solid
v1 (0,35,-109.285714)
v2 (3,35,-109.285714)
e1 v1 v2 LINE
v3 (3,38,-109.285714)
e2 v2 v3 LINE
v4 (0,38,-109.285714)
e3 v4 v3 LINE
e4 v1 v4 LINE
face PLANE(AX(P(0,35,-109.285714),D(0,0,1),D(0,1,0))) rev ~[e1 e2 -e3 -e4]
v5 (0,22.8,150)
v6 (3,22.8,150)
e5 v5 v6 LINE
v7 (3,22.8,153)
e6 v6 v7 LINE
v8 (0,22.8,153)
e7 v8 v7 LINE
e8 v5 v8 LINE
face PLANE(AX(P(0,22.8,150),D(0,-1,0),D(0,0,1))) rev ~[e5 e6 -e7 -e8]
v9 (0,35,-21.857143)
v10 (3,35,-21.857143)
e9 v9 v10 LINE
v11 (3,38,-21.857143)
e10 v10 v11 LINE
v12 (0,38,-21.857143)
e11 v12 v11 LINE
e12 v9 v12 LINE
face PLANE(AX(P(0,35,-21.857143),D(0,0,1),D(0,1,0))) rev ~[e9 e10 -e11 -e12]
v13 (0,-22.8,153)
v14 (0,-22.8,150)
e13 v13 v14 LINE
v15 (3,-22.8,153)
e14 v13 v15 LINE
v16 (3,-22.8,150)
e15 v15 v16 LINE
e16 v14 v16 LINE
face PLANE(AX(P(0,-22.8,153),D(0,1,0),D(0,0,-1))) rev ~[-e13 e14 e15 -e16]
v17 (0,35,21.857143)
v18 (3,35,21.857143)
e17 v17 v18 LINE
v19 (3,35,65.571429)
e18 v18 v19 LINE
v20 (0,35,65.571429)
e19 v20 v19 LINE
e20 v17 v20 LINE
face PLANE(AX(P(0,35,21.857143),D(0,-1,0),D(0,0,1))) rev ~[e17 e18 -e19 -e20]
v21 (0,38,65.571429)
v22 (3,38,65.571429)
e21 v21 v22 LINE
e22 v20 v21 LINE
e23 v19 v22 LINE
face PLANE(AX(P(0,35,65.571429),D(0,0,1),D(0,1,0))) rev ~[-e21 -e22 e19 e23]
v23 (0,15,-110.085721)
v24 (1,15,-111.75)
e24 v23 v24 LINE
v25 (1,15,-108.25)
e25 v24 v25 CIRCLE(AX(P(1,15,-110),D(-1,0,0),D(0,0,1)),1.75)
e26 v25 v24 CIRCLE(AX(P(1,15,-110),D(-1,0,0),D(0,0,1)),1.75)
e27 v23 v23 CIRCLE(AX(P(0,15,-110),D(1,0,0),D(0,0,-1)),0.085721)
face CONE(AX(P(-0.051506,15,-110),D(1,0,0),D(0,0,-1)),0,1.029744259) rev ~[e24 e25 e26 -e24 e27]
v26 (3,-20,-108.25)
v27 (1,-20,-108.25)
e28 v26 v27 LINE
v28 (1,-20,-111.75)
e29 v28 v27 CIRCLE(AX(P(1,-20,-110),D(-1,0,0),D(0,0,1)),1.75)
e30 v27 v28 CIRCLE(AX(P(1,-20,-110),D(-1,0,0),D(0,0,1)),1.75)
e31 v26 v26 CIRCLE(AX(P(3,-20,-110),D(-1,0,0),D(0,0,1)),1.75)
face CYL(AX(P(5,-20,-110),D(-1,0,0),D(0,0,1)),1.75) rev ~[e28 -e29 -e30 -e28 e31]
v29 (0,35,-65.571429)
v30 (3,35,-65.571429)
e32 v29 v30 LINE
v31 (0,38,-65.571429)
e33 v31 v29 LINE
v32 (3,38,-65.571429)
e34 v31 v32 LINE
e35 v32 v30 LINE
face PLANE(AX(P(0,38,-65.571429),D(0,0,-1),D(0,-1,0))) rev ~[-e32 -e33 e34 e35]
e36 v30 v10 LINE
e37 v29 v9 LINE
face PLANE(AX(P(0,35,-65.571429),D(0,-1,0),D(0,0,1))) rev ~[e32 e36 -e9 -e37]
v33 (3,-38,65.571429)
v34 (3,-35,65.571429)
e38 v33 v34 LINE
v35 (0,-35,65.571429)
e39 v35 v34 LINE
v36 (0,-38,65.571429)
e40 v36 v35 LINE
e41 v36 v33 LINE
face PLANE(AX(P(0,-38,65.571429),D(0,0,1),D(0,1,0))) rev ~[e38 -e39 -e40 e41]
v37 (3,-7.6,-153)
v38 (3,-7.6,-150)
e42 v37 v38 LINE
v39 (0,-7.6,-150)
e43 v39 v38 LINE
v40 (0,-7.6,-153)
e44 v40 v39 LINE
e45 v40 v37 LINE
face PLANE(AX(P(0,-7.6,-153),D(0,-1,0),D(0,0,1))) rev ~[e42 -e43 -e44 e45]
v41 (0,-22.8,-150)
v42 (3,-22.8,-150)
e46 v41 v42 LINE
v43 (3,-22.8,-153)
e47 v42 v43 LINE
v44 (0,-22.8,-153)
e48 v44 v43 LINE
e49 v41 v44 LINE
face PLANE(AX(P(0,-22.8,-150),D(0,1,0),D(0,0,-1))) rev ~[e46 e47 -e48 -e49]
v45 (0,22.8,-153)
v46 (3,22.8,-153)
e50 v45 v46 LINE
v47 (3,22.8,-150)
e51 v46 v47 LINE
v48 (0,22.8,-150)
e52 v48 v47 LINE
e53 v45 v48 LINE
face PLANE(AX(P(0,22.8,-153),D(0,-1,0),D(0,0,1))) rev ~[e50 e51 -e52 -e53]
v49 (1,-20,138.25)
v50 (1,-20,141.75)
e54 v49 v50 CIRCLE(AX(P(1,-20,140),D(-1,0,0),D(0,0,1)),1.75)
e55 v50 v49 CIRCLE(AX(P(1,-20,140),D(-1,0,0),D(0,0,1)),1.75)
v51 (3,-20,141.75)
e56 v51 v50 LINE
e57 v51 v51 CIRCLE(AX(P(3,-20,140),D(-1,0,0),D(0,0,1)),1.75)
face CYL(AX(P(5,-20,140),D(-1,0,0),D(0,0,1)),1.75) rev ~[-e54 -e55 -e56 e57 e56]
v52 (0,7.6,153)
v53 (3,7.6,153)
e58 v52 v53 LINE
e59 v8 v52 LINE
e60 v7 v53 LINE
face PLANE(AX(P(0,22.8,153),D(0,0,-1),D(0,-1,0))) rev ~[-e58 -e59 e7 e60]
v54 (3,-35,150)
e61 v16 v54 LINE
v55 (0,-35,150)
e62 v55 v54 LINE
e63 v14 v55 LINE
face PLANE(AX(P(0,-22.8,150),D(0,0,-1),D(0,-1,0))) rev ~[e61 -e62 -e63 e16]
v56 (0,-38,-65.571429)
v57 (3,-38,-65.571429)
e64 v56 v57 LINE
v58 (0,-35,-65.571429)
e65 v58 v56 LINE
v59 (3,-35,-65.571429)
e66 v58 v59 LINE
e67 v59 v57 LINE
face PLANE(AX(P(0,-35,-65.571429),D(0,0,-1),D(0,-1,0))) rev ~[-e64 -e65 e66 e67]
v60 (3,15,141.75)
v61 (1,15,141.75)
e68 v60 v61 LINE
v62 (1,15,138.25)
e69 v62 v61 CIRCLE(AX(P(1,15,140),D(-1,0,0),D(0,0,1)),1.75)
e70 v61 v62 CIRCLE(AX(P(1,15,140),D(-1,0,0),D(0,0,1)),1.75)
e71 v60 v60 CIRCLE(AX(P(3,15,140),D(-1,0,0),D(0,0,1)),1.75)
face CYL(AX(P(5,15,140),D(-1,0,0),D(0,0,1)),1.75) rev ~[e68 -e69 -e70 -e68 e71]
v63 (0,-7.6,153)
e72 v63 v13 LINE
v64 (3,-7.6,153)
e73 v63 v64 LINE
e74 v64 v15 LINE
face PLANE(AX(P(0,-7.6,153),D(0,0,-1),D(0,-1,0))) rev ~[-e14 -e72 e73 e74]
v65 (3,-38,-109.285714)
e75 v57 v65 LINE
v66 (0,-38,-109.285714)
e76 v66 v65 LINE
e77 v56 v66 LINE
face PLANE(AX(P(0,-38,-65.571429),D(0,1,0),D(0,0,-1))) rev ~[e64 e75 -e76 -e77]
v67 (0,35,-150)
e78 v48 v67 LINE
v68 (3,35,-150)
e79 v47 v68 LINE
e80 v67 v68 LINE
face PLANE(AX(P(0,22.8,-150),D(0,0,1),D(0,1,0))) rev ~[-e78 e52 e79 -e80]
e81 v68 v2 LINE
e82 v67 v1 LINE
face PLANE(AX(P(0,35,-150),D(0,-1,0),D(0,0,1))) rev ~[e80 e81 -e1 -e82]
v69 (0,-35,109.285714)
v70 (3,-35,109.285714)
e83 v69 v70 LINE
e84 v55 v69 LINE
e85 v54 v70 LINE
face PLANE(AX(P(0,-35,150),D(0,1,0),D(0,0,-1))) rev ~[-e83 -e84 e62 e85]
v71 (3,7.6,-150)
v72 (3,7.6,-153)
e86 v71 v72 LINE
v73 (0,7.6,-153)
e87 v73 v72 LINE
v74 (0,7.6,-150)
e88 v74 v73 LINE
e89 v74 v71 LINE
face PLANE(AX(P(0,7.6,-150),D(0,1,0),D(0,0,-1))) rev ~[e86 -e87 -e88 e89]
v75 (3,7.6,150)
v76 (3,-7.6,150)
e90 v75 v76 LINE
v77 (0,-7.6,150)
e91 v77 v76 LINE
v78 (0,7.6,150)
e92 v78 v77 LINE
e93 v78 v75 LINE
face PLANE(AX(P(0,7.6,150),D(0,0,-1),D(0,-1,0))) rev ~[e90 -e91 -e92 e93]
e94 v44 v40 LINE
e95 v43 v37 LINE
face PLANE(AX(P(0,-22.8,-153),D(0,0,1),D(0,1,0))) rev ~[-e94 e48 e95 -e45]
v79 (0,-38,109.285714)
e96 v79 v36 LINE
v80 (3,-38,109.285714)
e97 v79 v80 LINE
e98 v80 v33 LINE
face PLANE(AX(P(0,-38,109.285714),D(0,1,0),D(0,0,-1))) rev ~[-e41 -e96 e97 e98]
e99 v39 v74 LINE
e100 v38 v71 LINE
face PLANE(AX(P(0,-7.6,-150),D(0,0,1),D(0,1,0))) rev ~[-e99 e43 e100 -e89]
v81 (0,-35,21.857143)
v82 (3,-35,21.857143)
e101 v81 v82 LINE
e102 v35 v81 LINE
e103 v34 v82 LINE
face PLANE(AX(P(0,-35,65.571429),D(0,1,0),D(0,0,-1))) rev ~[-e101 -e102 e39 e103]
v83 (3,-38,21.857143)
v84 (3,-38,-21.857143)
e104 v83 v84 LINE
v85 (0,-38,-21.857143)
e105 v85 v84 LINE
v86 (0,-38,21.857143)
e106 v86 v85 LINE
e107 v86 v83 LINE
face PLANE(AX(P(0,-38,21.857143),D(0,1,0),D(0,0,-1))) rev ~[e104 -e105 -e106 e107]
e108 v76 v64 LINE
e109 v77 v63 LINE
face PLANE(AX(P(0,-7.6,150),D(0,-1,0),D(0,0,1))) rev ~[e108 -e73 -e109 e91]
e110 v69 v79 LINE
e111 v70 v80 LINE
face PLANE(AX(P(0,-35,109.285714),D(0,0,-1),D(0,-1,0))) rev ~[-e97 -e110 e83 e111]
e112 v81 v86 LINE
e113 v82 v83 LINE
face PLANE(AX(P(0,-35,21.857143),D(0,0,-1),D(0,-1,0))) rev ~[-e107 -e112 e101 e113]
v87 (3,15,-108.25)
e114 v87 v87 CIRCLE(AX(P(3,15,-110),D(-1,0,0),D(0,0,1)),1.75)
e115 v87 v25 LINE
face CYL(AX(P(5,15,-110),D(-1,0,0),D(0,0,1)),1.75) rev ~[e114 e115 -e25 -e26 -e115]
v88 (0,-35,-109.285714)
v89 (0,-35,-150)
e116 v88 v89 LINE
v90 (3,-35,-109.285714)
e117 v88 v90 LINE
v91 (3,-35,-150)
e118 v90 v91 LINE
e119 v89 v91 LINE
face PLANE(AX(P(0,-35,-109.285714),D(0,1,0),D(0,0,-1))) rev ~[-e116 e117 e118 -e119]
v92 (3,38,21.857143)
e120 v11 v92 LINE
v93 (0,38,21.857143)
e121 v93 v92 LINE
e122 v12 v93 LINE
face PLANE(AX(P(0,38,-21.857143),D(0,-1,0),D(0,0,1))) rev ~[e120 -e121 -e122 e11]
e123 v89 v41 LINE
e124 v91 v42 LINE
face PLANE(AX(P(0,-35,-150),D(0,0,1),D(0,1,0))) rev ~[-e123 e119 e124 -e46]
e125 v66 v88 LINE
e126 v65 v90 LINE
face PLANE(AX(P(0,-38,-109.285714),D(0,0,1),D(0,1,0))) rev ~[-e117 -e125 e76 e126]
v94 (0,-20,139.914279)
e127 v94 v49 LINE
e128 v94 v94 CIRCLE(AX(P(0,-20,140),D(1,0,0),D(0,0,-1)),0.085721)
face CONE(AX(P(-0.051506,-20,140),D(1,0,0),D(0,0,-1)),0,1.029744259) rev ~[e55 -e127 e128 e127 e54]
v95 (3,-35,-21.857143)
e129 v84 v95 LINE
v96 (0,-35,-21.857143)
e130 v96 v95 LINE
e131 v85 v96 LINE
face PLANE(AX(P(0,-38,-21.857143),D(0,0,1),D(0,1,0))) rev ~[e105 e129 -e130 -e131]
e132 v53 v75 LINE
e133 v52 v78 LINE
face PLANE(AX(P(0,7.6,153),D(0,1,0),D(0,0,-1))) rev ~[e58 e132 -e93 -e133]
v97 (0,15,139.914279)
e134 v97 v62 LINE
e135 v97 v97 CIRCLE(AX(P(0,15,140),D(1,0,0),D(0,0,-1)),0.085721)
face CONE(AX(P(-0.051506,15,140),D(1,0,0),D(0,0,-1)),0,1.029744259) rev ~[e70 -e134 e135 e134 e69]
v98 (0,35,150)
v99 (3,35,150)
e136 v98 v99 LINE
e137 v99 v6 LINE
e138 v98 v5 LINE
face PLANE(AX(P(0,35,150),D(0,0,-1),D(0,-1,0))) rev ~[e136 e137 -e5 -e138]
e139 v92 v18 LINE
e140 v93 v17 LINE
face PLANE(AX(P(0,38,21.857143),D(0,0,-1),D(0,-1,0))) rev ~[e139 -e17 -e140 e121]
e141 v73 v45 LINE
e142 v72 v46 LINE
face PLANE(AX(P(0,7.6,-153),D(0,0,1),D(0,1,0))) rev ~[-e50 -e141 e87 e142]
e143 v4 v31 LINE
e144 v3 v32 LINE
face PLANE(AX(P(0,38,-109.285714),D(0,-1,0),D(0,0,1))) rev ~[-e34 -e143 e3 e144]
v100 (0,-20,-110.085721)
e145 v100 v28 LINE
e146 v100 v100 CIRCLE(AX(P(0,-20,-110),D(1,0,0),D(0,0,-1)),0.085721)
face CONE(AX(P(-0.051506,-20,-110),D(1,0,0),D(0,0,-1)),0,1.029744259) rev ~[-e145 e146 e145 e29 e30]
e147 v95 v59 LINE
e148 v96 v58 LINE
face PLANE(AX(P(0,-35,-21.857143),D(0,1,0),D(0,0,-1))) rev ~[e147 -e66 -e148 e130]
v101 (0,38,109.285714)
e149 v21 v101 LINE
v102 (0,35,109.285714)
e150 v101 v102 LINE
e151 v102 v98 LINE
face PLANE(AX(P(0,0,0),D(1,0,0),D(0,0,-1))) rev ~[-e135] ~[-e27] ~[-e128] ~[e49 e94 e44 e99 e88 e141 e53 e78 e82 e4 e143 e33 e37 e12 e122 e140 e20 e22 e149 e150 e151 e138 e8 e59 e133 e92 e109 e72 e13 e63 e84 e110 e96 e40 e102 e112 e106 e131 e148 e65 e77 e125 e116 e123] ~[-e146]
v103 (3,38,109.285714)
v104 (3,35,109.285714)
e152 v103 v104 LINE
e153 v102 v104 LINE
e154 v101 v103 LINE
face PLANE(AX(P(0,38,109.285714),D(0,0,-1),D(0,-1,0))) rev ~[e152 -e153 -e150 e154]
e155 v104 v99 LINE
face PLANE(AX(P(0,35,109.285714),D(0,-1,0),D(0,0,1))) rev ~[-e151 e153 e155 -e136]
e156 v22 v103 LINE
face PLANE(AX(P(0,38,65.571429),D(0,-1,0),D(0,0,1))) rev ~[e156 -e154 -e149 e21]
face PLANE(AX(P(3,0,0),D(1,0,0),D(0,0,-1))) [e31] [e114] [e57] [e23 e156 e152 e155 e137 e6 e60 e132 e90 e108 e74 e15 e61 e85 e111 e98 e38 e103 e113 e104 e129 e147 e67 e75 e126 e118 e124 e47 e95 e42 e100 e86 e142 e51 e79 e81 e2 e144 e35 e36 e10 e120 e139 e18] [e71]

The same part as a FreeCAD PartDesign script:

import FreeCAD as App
import Part
import Sketcher
Q = App.Units.Quantity

doc = App.newDocument("Part")
body = doc.addObject("PartDesign::Body", "Body")

# Sketch on YZ plane
sketch1 = doc.addObject("Sketcher::SketchObject", "Sketch")
body.addObject(sketch1)
sketch1.AttachmentSupport = (doc.YZ_Plane, [""])
sketch1.MapMode = "FlatFace"
sketch1.addGeometry([
    Part.LineSegment(App.Vector(38, -109.3, 0), App.Vector(38, -65.6, 0)),  # 0
    Part.LineSegment(App.Vector(38, -65.6, 0), App.Vector(35, -65.6, 0)),  # 1
    Part.LineSegment(App.Vector(35, -65.6, 0), App.Vector(35, -21.9, 0)),  # 2
    Part.LineSegment(App.Vector(35, -21.9, 0), App.Vector(38, -21.9, 0)),  # 3
    Part.LineSegment(App.Vector(38, -21.9, 0), App.Vector(38, 21.9, 0)),  # 4
    Part.LineSegment(App.Vector(38, 21.9, 0), App.Vector(35, 21.9, 0)),  # 5
    Part.LineSegment(App.Vector(35, 21.9, 0), App.Vector(35, 65.6, 0)),  # 6
    Part.LineSegment(App.Vector(35, 65.6, 0), App.Vector(38, 65.6, 0)),  # 7
    Part.LineSegment(App.Vector(38, 65.6, 0), App.Vector(38, 109.3, 0)),  # 8
    Part.LineSegment(App.Vector(38, 109.3, 0), App.Vector(35, 109.3, 0)),  # 9
    Part.LineSegment(App.Vector(35, 109.3, 0), App.Vector(35, 150, 0)),  # 10
    Part.LineSegment(App.Vector(35, 150, 0), App.Vector(22.8, 150, 0)),  # 11
    Part.LineSegment(App.Vector(22.8, 150, 0), App.Vector(22.8, 153, 0)),  # 12
    Part.LineSegment(App.Vector(22.8, 153, 0), App.Vector(7.6, 153, 0)),  # 13
    Part.LineSegment(App.Vector(7.6, 153, 0), App.Vector(7.6, 150, 0)),  # 14
    Part.LineSegment(App.Vector(7.6, 150, 0), App.Vector(-7.6, 150, 0)),  # 15
    Part.LineSegment(App.Vector(-7.6, 150, 0), App.Vector(-7.6, 153, 0)),  # 16
    Part.LineSegment(App.Vector(-7.6, 153, 0), App.Vector(-22.8, 153, 0)),  # 17
    Part.LineSegment(App.Vector(-22.8, 153, 0), App.Vector(-22.8, 150, 0)),  # 18
    Part.LineSegment(App.Vector(-22.8, 150, 0), App.Vector(-35, 150, 0)),  # 19
    Part.LineSegment(App.Vector(-35, 150, 0), App.Vector(-35, 109.3, 0)),  # 20
    Part.LineSegment(App.Vector(-35, 109.3, 0), App.Vector(-38, 109.3, 0)),  # 21
    Part.LineSegment(App.Vector(-38, 109.3, 0), App.Vector(-38, 65.6, 0)),  # 22
    Part.LineSegment(App.Vector(-38, 65.6, 0), App.Vector(-35, 65.6, 0)),  # 23
    Part.LineSegment(App.Vector(-35, 65.6, 0), App.Vector(-35, 21.9, 0)),  # 24
    Part.LineSegment(App.Vector(-35, 21.9, 0), App.Vector(-38, 21.9, 0)),  # 25
    Part.LineSegment(App.Vector(-38, 21.9, 0), App.Vector(-38, -21.9, 0)),  # 26
    Part.LineSegment(App.Vector(-38, -21.9, 0), App.Vector(-35, -21.9, 0)),  # 27
    Part.LineSegment(App.Vector(-35, -21.9, 0), App.Vector(-35, -65.6, 0)),  # 28
    Part.LineSegment(App.Vector(-35, -65.6, 0), App.Vector(-38, -65.6, 0)),  # 29
    Part.LineSegment(App.Vector(-38, -65.6, 0), App.Vector(-38, -109.3, 0)),  # 30
    Part.LineSegment(App.Vector(-38, -109.3, 0), App.Vector(-35, -109.3, 0)),  # 31
    Part.LineSegment(App.Vector(-35, -109.3, 0), App.Vector(-35, -150, 0)),  # 32
    Part.LineSegment(App.Vector(-35, -150, 0), App.Vector(-22.8, -150, 0)),  # 33
    Part.LineSegment(App.Vector(-22.8, -150, 0), App.Vector(-22.8, -153, 0)),  # 34
    Part.LineSegment(App.Vector(-22.8, -153, 0), App.Vector(-7.6, -153, 0)),  # 35
    Part.LineSegment(App.Vector(-7.6, -153, 0), App.Vector(-7.6, -150, 0)),  # 36
    Part.LineSegment(App.Vector(-7.6, -150, 0), App.Vector(7.6, -150, 0)),  # 37
    Part.LineSegment(App.Vector(7.6, -150, 0), App.Vector(7.6, -153, 0)),  # 38
    Part.LineSegment(App.Vector(7.6, -153, 0), App.Vector(22.8, -153, 0)),  # 39
    Part.LineSegment(App.Vector(22.8, -153, 0), App.Vector(22.8, -150, 0)),  # 40
    Part.LineSegment(App.Vector(22.8, -150, 0), App.Vector(35, -150, 0)),  # 41
    Part.LineSegment(App.Vector(35, -150, 0), App.Vector(35, -109.3, 0)),  # 42
    Part.LineSegment(App.Vector(35, -109.3, 0), App.Vector(38, -109.3, 0)),  # 43
], False)
sketch1.addConstraint([
    Sketcher.Constraint("Coincident", 0, 2, 1, 1),
    Sketcher.Constraint("Coincident", 1, 2, 2, 1),
    Sketcher.Constraint("Coincident", 2, 2, 3, 1),
    Sketcher.Constraint("Coincident", 3, 2, 4, 1),
    Sketcher.Constraint("Coincident", 4, 2, 5, 1),
    Sketcher.Constraint("Coincident", 5, 2, 6, 1),
    Sketcher.Constraint("Coincident", 6, 2, 7, 1),
    Sketcher.Constraint("Coincident", 7, 2, 8, 1),
    Sketcher.Constraint("Coincident", 8, 2, 9, 1),
    Sketcher.Constraint("Coincident", 9, 2, 10, 1),
    Sketcher.Constraint("Coincident", 10, 2, 11, 1),
    Sketcher.Constraint("Coincident", 11, 2, 12, 1),
    Sketcher.Constraint("Coincident", 12, 2, 13, 1),
    Sketcher.Constraint("Coincident", 13, 2, 14, 1),
    Sketcher.Constraint("Coincident", 14, 2, 15, 1),
    Sketcher.Constraint("Coincident", 15, 2, 16, 1),
    Sketcher.Constraint("Coincident", 16, 2, 17, 1),
    Sketcher.Constraint("Coincident", 17, 2, 18, 1),
    Sketcher.Constraint("Coincident", 18, 2, 19, 1),
    Sketcher.Constraint("Coincident", 19, 2, 20, 1),
    Sketcher.Constraint("Coincident", 20, 2, 21, 1),
    Sketcher.Constraint("Coincident", 21, 2, 22, 1),
    Sketcher.Constraint("Coincident", 22, 2, 23, 1),
    Sketcher.Constraint("Coincident", 23, 2, 24, 1),
    Sketcher.Constraint("Coincident", 24, 2, 25, 1),
    Sketcher.Constraint("Coincident", 25, 2, 26, 1),
    Sketcher.Constraint("Coincident", 26, 2, 27, 1),
    Sketcher.Constraint("Coincident", 27, 2, 28, 1),
    Sketcher.Constraint("Coincident", 28, 2, 29, 1),
    Sketcher.Constraint("Coincident", 29, 2, 30, 1),
    Sketcher.Constraint("Coincident", 30, 2, 31, 1),
    Sketcher.Constraint("Coincident", 31, 2, 32, 1),
    Sketcher.Constraint("Coincident", 32, 2, 33, 1),
    Sketcher.Constraint("Coincident", 33, 2, 34, 1),
    Sketcher.Constraint("Coincident", 34, 2, 35, 1),
    Sketcher.Constraint("Coincident", 35, 2, 36, 1),
    Sketcher.Constraint("Coincident", 36, 2, 37, 1),
    Sketcher.Constraint("Coincident", 37, 2, 38, 1),
    Sketcher.Constraint("Coincident", 38, 2, 39, 1),
    Sketcher.Constraint("Coincident", 39, 2, 40, 1),
    Sketcher.Constraint("Coincident", 40, 2, 41, 1),
    Sketcher.Constraint("Coincident", 41, 2, 42, 1),
    Sketcher.Constraint("Coincident", 42, 2, 43, 1),
    Sketcher.Constraint("Coincident", 43, 2, 0, 1),
    Sketcher.Constraint("Vertical", 0),
    Sketcher.Constraint("Horizontal", 1),
    Sketcher.Constraint("Vertical", 2),
    Sketcher.Constraint("Horizontal", 3),
    Sketcher.Constraint("Vertical", 4),
    Sketcher.Constraint("Horizontal", 5),
    Sketcher.Constraint("Vertical", 6),
    Sketcher.Constraint("Horizontal", 7),
    Sketcher.Constraint("Vertical", 8),
    Sketcher.Constraint("Horizontal", 9),
    Sketcher.Constraint("Vertical", 10),
    Sketcher.Constraint("Horizontal", 11),
    Sketcher.Constraint("Vertical", 12),
    Sketcher.Constraint("Horizontal", 13),
    Sketcher.Constraint("Vertical", 14),
    Sketcher.Constraint("Horizontal", 15),
    Sketcher.Constraint("Vertical", 16),
    Sketcher.Constraint("Horizontal", 17),
    Sketcher.Constraint("Vertical", 18),
    Sketcher.Constraint("Horizontal", 19),
    Sketcher.Constraint("Vertical", 20),
    Sketcher.Constraint("Horizontal", 21),
    Sketcher.Constraint("Vertical", 22),
    Sketcher.Constraint("Horizontal", 23),
    Sketcher.Constraint("Vertical", 24),
    Sketcher.Constraint("Horizontal", 25),
    Sketcher.Constraint("Vertical", 26),
    Sketcher.Constraint("Horizontal", 27),
    Sketcher.Constraint("Vertical", 28),
    Sketcher.Constraint("Horizontal", 29),
    Sketcher.Constraint("Vertical", 30),
    Sketcher.Constraint("Horizontal", 31),
    Sketcher.Constraint("Vertical", 32),
    Sketcher.Constraint("Horizontal", 33),
    Sketcher.Constraint("Vertical", 34),
    Sketcher.Constraint("Horizontal", 35),
    Sketcher.Constraint("Vertical", 36),
    Sketcher.Constraint("Horizontal", 37),
    Sketcher.Constraint("Vertical", 38),
    Sketcher.Constraint("Horizontal", 39),
    Sketcher.Constraint("Vertical", 40),
    Sketcher.Constraint("Horizontal", 41),
    Sketcher.Constraint("Vertical", 42),
    Sketcher.Constraint("Horizontal", 43),
    Sketcher.Constraint("Symmetric", 0, 2, 22, 2, -1, 1),
    Sketcher.Constraint("Symmetric", 2, 2, 24, 2, -1, 1),
    Sketcher.Constraint("Symmetric", 4, 2, 26, 2, -1, 1),
    Sketcher.Constraint("Symmetric", 6, 2, 28, 2, -1, 1),
    Sketcher.Constraint("Symmetric", 8, 2, 30, 2, -1, 1),
    Sketcher.Constraint("Symmetric", 10, 2, 32, 2, -1, 1),
    Sketcher.Constraint("Symmetric", 12, 2, 34, 2, -1, 1),
    Sketcher.Constraint("Symmetric", 14, 2, 36, 2, -1, 1),
    Sketcher.Constraint("Symmetric", 16, 2, 38, 2, -1, 1),
    Sketcher.Constraint("Symmetric", 18, 2, 40, 2, -1, 1),
    Sketcher.Constraint("Symmetric", 20, 2, 42, 2, -1, 1),
    Sketcher.Constraint("Symmetric", 13, 2, 16, 2, -2),
    Sketcher.Constraint("Symmetric", 11, 2, 18, 2, -2),
    Sketcher.Constraint("Symmetric", 9, 2, 20, 2, -2),
    Sketcher.Constraint("Symmetric", 7, 2, 22, 2, -2),
    Sketcher.Constraint("Symmetric", 5, 2, 24, 2, -2),
    Sketcher.Constraint("Horizontal", 11, 2, 14, 2),
    Sketcher.Constraint("Vertical", 0, 2, 3, 2),
    Sketcher.Constraint("Vertical", 6, 2, 9, 2),
    Sketcher.Constraint("Equal", 13, 15),
    Sketcher.Constraint("Equal", 0, 2),
    Sketcher.Constraint("Equal", 2, 4),
    Sketcher.Constraint("Equal", 43, 12),
    Sketcher.Constraint("DistanceX", 1, 2, 1, 1, Q("3 mm")),
    Sketcher.Constraint("DistanceX", 11, 2, 11, 1, Q("12.2 mm")),
    Sketcher.Constraint("DistanceX", 13, 2, 13, 1, Q("15.2 mm")),
    Sketcher.Constraint("DistanceY", -1, 1, 10, 2, Q("150 mm")),
    Sketcher.Constraint("DistanceY", 0, 1, 0, 2, Q("43.714286 mm")),
])
pad1 = doc.addObject("PartDesign::Pad", "Pad")
body.addObject(pad1)
pad1.Profile = sketch1
pad1.Length = 3

# Sketch on YZ plane
sketch2 = doc.addObject("Sketcher::SketchObject", "Sketch001")
body.addObject(sketch2)
sketch2.AttachmentSupport = (doc.YZ_Plane, [""])
sketch2.MapMode = "FlatFace"
sketch2.AttachmentOffset = App.Placement(App.Vector(0, 0, 3), App.Rotation())
sketch2.addGeometry([
    Part.Circle(App.Vector(15, -110, 0), App.Vector(0, 0, 1), 1.8),
    Part.Circle(App.Vector(-20, -110, 0), App.Vector(0, 0, 1), 1.8),
    Part.Circle(App.Vector(15, 140, 0), App.Vector(0, 0, 1), 1.8),
    Part.Circle(App.Vector(-20, 140, 0), App.Vector(0, 0, 1), 1.8),
], False)
sketch2.addConstraint([
    Sketcher.Constraint("Equal", 0, 1),
    Sketcher.Constraint("Equal", 1, 2),
    Sketcher.Constraint("Equal", 2, 3),
    Sketcher.Constraint("Horizontal", 0, 3, 1, 3),
    Sketcher.Constraint("Horizontal", 2, 3, 3, 3),
    Sketcher.Constraint("Vertical", 0, 3, 2, 3),
    Sketcher.Constraint("Vertical", 1, 3, 3, 3),
    Sketcher.Constraint("Diameter", 0, Q("3.5 mm")),
    Sketcher.Constraint("DistanceX", -1, 1, 0, 3, Q("15 mm")),
    Sketcher.Constraint("DistanceY", 0, 3, -1, 1, Q("110 mm")),
    Sketcher.Constraint("DistanceX", 1, 3, -1, 1, Q("20 mm")),
    Sketcher.Constraint("DistanceY", -1, 1, 2, 3, Q("140 mm")),
])
doc.recompute()
hole = doc.addObject("PartDesign::Hole", "Hole")
body.addObject(hole)
hole.Profile = sketch2
hole.ThreadType = "None"
hole.Diameter = 3.5
hole.DepthType = "Dimension"
hole.Depth = 2
hole.DrillPoint = "Angled"
hole.DrillPointAngle = 118

doc.recompute()
